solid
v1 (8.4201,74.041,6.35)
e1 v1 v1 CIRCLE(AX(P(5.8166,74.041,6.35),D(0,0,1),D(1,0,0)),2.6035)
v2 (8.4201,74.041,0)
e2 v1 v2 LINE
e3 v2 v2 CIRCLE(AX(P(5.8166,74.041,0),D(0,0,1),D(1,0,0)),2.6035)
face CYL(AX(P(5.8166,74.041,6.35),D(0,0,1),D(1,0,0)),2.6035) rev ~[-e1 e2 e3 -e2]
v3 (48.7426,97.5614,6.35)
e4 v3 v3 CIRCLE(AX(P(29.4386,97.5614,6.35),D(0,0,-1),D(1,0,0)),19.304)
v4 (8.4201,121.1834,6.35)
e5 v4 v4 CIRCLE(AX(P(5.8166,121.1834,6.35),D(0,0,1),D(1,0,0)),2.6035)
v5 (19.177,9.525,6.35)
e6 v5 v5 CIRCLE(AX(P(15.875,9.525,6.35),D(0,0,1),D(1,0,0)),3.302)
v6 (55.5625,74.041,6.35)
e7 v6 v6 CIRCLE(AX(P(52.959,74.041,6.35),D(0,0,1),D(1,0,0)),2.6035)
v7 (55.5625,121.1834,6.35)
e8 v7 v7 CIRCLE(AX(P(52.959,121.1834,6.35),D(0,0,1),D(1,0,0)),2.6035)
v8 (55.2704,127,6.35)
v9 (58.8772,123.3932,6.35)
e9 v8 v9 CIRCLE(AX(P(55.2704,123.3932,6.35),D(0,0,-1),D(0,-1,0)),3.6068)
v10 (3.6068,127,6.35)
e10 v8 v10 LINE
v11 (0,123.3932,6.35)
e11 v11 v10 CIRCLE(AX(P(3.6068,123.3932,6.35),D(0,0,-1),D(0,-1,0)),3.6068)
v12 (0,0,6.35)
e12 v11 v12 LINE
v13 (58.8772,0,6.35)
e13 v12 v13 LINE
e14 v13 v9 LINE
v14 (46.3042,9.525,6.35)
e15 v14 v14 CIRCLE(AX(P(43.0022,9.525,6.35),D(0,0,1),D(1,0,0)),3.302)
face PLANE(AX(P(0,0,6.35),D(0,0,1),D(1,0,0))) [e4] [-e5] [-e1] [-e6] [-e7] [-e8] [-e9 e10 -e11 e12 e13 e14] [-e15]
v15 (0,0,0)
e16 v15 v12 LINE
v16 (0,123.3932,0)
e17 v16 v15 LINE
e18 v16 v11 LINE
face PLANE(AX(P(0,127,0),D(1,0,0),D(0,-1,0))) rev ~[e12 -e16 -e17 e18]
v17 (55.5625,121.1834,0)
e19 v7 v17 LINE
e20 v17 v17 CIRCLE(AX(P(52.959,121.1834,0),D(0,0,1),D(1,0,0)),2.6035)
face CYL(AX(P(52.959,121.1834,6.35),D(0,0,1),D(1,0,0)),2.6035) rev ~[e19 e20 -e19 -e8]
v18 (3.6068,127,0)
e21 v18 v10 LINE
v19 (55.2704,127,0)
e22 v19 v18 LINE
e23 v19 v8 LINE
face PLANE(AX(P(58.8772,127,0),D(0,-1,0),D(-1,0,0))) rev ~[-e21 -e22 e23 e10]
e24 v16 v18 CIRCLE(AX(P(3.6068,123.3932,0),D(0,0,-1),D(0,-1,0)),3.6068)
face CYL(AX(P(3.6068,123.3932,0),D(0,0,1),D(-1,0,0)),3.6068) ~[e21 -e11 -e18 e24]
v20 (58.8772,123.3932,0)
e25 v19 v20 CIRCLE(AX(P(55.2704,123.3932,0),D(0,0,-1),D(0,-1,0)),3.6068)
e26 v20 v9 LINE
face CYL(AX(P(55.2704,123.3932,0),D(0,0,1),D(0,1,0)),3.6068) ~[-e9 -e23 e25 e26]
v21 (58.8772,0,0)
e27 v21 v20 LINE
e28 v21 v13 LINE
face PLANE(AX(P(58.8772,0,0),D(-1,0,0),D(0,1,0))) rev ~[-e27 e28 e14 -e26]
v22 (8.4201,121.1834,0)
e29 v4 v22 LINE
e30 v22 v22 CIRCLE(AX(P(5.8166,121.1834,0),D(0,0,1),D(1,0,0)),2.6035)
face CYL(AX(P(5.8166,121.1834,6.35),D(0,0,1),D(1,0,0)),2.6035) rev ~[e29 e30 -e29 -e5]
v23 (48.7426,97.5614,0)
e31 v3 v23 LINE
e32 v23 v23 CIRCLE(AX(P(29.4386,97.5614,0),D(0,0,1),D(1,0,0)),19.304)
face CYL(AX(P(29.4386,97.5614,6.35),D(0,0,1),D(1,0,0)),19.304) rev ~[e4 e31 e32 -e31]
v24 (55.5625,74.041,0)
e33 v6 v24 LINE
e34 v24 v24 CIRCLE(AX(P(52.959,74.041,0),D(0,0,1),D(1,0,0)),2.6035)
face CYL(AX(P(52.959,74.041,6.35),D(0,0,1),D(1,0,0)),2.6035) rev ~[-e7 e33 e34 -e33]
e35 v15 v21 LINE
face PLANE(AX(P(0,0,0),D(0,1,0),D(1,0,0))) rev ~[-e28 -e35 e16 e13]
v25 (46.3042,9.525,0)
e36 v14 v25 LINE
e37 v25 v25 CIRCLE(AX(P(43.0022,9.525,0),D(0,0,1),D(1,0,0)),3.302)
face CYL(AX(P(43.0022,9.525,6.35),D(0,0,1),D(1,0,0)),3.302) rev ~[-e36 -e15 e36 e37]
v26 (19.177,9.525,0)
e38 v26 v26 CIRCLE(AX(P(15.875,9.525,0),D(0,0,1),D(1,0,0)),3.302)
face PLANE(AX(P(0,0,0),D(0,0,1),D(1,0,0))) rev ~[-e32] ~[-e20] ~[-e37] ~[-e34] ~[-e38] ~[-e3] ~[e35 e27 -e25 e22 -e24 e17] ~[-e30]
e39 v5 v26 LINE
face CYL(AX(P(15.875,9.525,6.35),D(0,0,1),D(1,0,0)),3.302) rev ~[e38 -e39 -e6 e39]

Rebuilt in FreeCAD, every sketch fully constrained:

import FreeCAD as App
import Part
import Sketcher
Q = App.Units.Quantity


def edges_at(feature, points):
    """Names of the edges that pass closest to the given points."""
    edges = feature.Shape.Edges
    near = lambda p: min(range(len(edges)), key=lambda i: edges[i].distToShape(Part.Vertex(*p))[0])
    return sorted({f"Edge{near(p) + 1}" for p in points})


def add_polygon(sketch, points):
    """Adds a closed chain of lines whose ends are joined by coincident constraints."""
    first, n = sketch.GeometryCount, len(points)
    for a, b in zip(points, points[1:] + points[:1]):
        sketch.addGeometry(Part.LineSegment(App.Vector(*a, 0), App.Vector(*b, 0)), False)
    for i in range(n):
        sketch.addConstraint(Sketcher.Constraint("Coincident", first + i, 2, first + (i + 1) % n, 1))

doc = App.newDocument("Part")
body = doc.addObject("PartDesign::Body", "Body")

sketch1 = body.newObject("Sketcher::SketchObject", "Sketch")
sketch1.AttachmentSupport = (doc.getObject("XY_Plane"), [""])
sketch1.MapMode = "FlatFace"
add_polygon(sketch1, [(0, 127), (0, 0), (59, 0), (59, 127)])
sketch1.addConstraint([
    Sketcher.Constraint("Vertical", 0),
    Sketcher.Constraint("Horizontal", 1),
    Sketcher.Constraint("Vertical", 2),
    Sketcher.Constraint("Horizontal", 3),
    Sketcher.Constraint("Coincident", 0, 2, -1, 1),
    Sketcher.Constraint("DistanceY", 0, 2, 0, 1, Q("5 in")),
    Sketcher.Constraint("DistanceX", 1, 1, 1, 2, Q("2.318 in")),
])
pad1 = body.newObject("PartDesign::Pad", "Pad")
pad1.Profile = sketch1
pad1.Length = Q("0.25 in")

sketch2 = body.newObject("Sketcher::SketchObject", "Sketch001")
sketch2.AttachmentSupport = (doc.getObject("XY_Plane"), [""])
sketch2.MapMode = "FlatFace"
sketch2.AttachmentOffset = App.Placement(App.Vector(0, 0, 0.25 * 25.4), App.Rotation())
sketch2.addGeometry(Part.Circle(App.Vector(29, 98, 0), App.Vector(0, 0, 1), 19), False)
sketch2.addConstraint([
    Sketcher.Constraint("Diameter", 0, Q("1.52 in")),
    Sketcher.Constraint("DistanceX", -1, 1, 0, 3, Q("1.159 in")),
    Sketcher.Constraint("DistanceY", -1, 1, 0, 3, Q("3.841 in")),
])
pocket1 = body.newObject("PartDesign::Pocket", "Pocket")
pocket1.Profile = sketch2
pocket1.Length = Q("0.25 in")

sketch3 = body.newObject("Sketcher::SketchObject", "Sketch002")
sketch3.AttachmentSupport = (doc.getObject("XY_Plane"), [""])
sketch3.MapMode = "FlatFace"
sketch3.AttachmentOffset = App.Placement(App.Vector(0, 0, 0.25 * 25.4), App.Rotation())
sketch3.addGeometry([
    Part.Circle(App.Vector(5.8, 121.2, 0), App.Vector(0, 0, 1), 2.6),
    Part.Circle(App.Vector(5.8, 74, 0), App.Vector(0, 0, 1), 2.6),
    Part.Circle(App.Vector(53, 121.2, 0), App.Vector(0, 0, 1), 2.6),
    Part.Circle(App.Vector(53, 74, 0), App.Vector(0, 0, 1), 2.6),
], False)
sketch3.addConstraint([
    Sketcher.Constraint("Equal", 0, 1),
    Sketcher.Constraint("Equal", 1, 2),
    Sketcher.Constraint("Equal", 2, 3),
    Sketcher.Constraint("Horizontal", 0, 3, 2, 3),
    Sketcher.Constraint("Horizontal", 1, 3, 3, 3),
    Sketcher.Constraint("Vertical", 0, 3, 1, 3),
    Sketcher.Constraint("Vertical", 2, 3, 3, 3),
    Sketcher.Constraint("Diameter", 0, Q("0.205 in")),
    Sketcher.Constraint("DistanceX", -1, 1, 0, 3, Q("0.229 in")),
    Sketcher.Constraint("DistanceY", 1, 3, 0, 3, Q("1.856 in")),
    Sketcher.Constraint("DistanceX", 0, 3, 2, 3, Q("1.856 in")),
    Sketcher.Constraint("DistanceY", -1, 1, 0, 3, Q("4.771 in")),
])
pocket2 = body.newObject("PartDesign::Pocket", "Pocket001")
pocket2.Profile = sketch3
pocket2.Length = Q("0.25 in")
doc.recompute()

fillet = body.newObject("PartDesign::Fillet", "Fillet")
fillet.Base = (pocket2, edges_at(pocket2, [(0, 127, 3.175), (58.877, 127, 3.175)]))
fillet.Radius = Q("0.142 in")

sketch4 = body.newObject("Sketcher::SketchObject", "Sketch003")
sketch4.AttachmentSupport = (doc.getObject("XY_Plane"), [""])
sketch4.MapMode = "FlatFace"
sketch4.AttachmentOffset = App.Placement(App.Vector(0, 0, 0.25 * 25.4), App.Rotation())
sketch4.addGeometry([
    Part.Circle(App.Vector(15.9, 9.5, 0), App.Vector(0, 0, 1), 3.3),
    Part.Circle(App.Vector(43, 9.5, 0), App.Vector(0, 0, 1), 3.3),
], False)
sketch4.addConstraint([
    Sketcher.Constraint("Equal", 0, 1),
    Sketcher.Constraint("Horizontal", 0, 3, 1, 3),
    Sketcher.Constraint("Diameter", 0, Q("0.26 in")),
    Sketcher.Constraint("DistanceX", -1, 1, 0, 3, Q("0.625 in")),
    Sketcher.Constraint("DistanceY", -1, 1, 0, 3, Q("0.375 in")),
    Sketcher.Constraint("DistanceX", -1, 1, 1, 3, Q("1.693 in")),
])
pocket3 = body.newObject("PartDesign::Pocket", "Pocket002")
pocket3.Profile = sketch4
pocket3.Length = Q("1 in")

doc.recompute()
